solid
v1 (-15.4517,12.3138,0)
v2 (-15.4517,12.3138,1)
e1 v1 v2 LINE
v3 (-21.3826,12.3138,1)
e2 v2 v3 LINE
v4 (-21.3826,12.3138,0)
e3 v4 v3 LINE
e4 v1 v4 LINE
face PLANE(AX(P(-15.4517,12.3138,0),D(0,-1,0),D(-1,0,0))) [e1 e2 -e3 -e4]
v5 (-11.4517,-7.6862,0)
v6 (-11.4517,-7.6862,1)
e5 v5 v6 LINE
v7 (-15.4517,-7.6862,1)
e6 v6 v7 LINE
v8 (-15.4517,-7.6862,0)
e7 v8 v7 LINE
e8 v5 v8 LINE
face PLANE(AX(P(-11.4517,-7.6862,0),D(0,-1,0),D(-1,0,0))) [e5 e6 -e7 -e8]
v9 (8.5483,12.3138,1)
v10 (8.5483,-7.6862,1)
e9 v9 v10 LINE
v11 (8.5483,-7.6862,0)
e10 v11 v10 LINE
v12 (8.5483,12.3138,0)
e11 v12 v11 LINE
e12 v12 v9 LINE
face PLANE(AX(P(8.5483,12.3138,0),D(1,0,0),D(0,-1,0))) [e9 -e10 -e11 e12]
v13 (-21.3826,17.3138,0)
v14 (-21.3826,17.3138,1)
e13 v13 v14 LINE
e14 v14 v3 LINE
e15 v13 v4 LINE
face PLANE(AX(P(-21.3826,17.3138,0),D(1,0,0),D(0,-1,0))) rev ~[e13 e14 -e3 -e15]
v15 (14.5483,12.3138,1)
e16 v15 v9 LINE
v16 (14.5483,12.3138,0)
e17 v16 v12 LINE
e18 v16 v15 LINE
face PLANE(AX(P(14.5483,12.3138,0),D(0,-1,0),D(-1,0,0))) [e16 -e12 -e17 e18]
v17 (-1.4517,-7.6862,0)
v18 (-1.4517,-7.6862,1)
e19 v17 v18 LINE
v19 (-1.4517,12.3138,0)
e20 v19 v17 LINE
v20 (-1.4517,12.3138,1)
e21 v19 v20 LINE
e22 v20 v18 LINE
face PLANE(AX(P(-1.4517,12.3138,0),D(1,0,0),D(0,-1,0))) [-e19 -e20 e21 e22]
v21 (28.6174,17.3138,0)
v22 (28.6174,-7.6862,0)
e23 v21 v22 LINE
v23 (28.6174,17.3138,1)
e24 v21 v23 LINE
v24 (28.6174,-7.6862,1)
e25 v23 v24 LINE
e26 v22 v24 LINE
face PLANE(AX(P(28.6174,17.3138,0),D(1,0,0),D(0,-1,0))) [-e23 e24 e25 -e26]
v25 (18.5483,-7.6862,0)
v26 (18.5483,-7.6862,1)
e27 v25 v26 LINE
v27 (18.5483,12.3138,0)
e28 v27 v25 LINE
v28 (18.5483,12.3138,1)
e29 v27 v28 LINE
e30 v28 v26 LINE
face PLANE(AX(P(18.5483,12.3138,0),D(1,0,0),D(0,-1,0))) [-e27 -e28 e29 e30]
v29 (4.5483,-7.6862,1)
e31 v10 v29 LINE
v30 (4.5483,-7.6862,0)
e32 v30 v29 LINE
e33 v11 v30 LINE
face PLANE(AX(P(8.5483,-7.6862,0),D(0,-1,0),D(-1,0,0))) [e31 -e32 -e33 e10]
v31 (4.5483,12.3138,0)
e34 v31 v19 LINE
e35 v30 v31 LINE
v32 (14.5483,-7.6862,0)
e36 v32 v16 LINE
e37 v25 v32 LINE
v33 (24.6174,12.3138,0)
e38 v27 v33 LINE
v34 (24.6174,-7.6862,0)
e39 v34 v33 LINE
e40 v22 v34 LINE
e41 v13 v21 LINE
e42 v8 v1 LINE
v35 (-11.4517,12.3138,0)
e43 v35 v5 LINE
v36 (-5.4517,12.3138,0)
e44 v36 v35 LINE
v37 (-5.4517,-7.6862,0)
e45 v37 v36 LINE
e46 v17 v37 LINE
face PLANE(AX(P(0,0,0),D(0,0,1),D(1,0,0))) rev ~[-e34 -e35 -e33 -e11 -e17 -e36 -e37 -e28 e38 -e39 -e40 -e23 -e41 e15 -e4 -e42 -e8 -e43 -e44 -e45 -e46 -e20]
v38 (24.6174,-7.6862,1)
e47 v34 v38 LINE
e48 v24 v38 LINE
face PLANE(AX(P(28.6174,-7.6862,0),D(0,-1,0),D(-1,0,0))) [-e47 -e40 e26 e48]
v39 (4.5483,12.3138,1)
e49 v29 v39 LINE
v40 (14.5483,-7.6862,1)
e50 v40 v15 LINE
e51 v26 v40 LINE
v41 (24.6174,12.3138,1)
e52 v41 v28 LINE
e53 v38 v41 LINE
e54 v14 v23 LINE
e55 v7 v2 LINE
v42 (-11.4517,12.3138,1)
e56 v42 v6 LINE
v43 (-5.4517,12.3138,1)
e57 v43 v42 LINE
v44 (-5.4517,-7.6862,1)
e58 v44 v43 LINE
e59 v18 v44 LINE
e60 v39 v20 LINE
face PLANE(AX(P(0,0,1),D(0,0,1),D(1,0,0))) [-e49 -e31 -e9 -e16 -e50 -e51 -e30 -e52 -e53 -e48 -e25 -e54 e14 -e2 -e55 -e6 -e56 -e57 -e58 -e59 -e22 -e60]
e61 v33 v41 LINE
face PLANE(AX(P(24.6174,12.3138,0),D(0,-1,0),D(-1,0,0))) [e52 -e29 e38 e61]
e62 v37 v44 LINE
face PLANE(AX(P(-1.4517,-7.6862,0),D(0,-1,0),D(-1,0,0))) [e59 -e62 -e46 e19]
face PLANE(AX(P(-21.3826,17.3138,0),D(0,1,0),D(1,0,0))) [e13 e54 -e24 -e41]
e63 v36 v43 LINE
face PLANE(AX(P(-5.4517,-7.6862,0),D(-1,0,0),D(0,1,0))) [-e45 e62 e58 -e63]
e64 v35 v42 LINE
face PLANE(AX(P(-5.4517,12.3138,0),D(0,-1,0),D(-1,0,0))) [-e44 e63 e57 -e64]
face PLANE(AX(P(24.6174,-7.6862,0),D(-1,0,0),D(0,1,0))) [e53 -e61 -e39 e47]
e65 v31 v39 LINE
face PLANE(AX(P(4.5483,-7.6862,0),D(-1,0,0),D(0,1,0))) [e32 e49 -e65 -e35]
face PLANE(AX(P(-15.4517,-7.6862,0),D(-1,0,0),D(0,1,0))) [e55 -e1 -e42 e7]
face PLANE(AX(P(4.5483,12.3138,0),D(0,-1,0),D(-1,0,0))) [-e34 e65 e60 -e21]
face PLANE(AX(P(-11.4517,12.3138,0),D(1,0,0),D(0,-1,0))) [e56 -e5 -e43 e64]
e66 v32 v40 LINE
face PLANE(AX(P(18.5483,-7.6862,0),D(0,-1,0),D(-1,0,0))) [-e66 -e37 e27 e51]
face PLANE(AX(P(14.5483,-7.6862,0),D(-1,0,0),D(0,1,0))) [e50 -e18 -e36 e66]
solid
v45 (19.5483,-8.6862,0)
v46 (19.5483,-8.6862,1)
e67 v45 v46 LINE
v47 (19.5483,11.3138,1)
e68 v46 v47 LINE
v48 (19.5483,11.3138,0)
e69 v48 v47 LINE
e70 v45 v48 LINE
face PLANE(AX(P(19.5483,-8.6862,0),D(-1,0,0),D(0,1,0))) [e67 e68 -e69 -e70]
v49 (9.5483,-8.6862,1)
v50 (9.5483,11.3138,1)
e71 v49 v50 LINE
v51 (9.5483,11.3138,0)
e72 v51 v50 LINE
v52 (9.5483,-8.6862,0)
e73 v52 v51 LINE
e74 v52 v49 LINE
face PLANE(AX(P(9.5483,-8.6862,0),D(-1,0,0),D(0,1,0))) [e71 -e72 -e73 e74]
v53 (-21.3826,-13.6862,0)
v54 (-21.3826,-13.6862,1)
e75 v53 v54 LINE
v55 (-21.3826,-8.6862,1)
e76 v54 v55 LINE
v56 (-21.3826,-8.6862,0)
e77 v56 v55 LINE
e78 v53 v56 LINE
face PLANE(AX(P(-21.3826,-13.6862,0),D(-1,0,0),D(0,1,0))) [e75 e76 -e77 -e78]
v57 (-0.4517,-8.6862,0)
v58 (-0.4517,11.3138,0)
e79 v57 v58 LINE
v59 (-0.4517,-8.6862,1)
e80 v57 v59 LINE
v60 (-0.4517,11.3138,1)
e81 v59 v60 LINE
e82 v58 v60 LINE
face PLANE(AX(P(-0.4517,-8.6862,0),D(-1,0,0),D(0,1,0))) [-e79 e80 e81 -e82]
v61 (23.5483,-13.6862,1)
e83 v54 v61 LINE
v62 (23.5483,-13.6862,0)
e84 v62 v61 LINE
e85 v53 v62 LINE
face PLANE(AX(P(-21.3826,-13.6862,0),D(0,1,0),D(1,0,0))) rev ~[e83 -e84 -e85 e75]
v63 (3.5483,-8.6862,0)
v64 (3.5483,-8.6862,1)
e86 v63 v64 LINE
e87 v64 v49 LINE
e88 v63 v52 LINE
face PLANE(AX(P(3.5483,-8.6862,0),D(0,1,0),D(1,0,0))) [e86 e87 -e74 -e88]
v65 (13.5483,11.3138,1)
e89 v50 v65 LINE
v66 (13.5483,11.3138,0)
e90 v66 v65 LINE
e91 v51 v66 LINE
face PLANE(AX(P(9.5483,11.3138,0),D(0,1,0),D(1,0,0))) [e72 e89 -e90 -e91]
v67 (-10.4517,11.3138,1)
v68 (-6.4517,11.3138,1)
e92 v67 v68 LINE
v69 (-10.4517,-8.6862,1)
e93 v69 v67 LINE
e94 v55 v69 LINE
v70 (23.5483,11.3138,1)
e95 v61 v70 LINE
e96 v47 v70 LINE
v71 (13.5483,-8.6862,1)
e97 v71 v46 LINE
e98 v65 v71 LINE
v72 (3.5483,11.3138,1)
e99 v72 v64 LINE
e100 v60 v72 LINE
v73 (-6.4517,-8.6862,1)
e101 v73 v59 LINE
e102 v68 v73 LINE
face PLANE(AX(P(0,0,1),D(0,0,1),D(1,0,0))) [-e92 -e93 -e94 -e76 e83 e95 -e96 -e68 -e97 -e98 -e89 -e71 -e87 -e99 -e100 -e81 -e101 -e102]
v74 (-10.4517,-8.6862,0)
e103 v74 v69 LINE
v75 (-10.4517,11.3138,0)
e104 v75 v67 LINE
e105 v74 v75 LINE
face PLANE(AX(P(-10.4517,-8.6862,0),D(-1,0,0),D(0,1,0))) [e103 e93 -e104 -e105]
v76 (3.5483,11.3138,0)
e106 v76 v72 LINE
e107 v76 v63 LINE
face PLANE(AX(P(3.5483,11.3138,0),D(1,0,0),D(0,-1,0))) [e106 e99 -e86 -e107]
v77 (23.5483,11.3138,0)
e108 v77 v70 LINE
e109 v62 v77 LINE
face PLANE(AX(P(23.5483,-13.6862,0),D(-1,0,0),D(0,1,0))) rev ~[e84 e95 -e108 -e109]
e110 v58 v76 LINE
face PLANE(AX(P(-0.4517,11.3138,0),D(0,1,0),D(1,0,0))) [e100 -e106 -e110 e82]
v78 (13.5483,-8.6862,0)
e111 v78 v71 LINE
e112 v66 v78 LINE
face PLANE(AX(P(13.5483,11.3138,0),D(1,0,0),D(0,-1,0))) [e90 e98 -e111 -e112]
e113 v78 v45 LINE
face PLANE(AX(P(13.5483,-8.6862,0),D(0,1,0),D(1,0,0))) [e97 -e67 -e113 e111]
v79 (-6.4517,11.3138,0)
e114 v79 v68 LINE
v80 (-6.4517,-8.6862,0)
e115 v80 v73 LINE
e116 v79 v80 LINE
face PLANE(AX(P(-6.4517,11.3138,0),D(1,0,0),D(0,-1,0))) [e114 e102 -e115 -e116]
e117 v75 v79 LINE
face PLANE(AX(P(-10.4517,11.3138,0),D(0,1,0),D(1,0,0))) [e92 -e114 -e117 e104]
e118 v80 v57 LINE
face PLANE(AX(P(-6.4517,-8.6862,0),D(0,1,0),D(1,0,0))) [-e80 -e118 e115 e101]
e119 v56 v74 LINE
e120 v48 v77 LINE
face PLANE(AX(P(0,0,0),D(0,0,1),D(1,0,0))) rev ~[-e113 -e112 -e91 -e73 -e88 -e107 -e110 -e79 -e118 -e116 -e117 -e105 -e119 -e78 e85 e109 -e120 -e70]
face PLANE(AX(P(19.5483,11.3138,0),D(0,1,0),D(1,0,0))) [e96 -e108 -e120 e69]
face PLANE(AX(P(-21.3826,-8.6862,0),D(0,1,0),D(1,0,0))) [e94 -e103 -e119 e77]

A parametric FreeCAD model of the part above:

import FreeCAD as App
import Part
import Sketcher

V = App.Vector


def add_polygon(sketch, points):
    """Adds a closed chain of lines whose ends are joined by coincident constraints."""
    first, n = sketch.GeometryCount, len(points)
    for a, b in zip(points, points[1:] + points[:1]):
        sketch.addGeometry(Part.LineSegment(App.Vector(*a, 0), App.Vector(*b, 0)), False)
    for i in range(n):
        sketch.addConstraint(Sketcher.Constraint("Coincident", first + i, 2, first + (i + 1) % n, 1))

doc = App.newDocument("Part")
body = doc.addObject("PartDesign::Body", "Body")
body.AllowCompound = True

# Sketch on XY plane
sketch1 = doc.addObject("Sketcher::SketchObject", "Sketch")
body.addObject(sketch1)
sketch1.AttachmentSupport = (doc.XY_Plane, [""])
sketch1.MapMode = "FlatFace"
add_polygon(sketch1, [(28.6, 17.3), (-21.4, 17.3), (-21.4, 12.3), (-15.5, 12.3), (-15.5, -7.7), (-11.5, -7.7), (-11.5, 12.3), (-5.5, 12.3), (-5.5, -7.7), (-1.5, -7.7), (-1.5, 12.3), (4.5, 12.3), (4.5, -7.7), (8.5, -7.7), (8.5, 12.3), (14.5, 12.3), (14.5, -7.7), (18.5, -7.7), (18.5, 12.3), (24.6, 12.3), (24.6, -7.7), (28.6, -7.7)])  # lines 0-21
add_polygon(sketch1, [(-21.4, -8.7), (-21.4, -13.7), (23.5, -13.7), (23.5, 11.3), (19.5, 11.3), (19.5, -8.7), (13.5, -8.7), (13.5, 11.3), (9.5, 11.3), (9.5, -8.7), (3.5, -8.7), (3.5, 11.3), (-0.5, 11.3), (-0.5, -8.7), (-6.5, -8.7), (-6.5, 11.3), (-10.5, 11.3), (-10.5, -8.7)])  # lines 22-39
sketch1.addConstraint(Sketcher.Constraint("Horizontal", 0))
sketch1.addConstraint(Sketcher.Constraint("Vertical", 1))
sketch1.addConstraint(Sketcher.Constraint("Horizontal", 2))
sketch1.addConstraint(Sketcher.Constraint("Vertical", 3))
sketch1.addConstraint(Sketcher.Constraint("Horizontal", 4))
sketch1.addConstraint(Sketcher.Constraint("Vertical", 5))
sketch1.addConstraint(Sketcher.Constraint("Horizontal", 6))
sketch1.addConstraint(Sketcher.Constraint("Vertical", 7))
sketch1.addConstraint(Sketcher.Constraint("Horizontal", 8))
sketch1.addConstraint(Sketcher.Constraint("Vertical", 9))
sketch1.addConstraint(Sketcher.Constraint("Horizontal", 10))
sketch1.addConstraint(Sketcher.Constraint("Vertical", 11))
sketch1.addConstraint(Sketcher.Constraint("Horizontal", 12))
sketch1.addConstraint(Sketcher.Constraint("Vertical", 13))
sketch1.addConstraint(Sketcher.Constraint("Horizontal", 14))
sketch1.addConstraint(Sketcher.Constraint("Vertical", 15))
sketch1.addConstraint(Sketcher.Constraint("Horizontal", 16))
sketch1.addConstraint(Sketcher.Constraint("Vertical", 17))
sketch1.addConstraint(Sketcher.Constraint("Horizontal", 18))
sketch1.addConstraint(Sketcher.Constraint("Vertical", 19))
sketch1.addConstraint(Sketcher.Constraint("Horizontal", 20))
sketch1.addConstraint(Sketcher.Constraint("Vertical", 21))
sketch1.addConstraint(Sketcher.Constraint("Vertical", 22))
sketch1.addConstraint(Sketcher.Constraint("Horizontal", 23))
sketch1.addConstraint(Sketcher.Constraint("Vertical", 24))
sketch1.addConstraint(Sketcher.Constraint("Horizontal", 25))
sketch1.addConstraint(Sketcher.Constraint("Vertical", 26))
sketch1.addConstraint(Sketcher.Constraint("Horizontal", 27))
sketch1.addConstraint(Sketcher.Constraint("Vertical", 28))
sketch1.addConstraint(Sketcher.Constraint("Horizontal", 29))
sketch1.addConstraint(Sketcher.Constraint("Vertical", 30))
sketch1.addConstraint(Sketcher.Constraint("Horizontal", 31))
sketch1.addConstraint(Sketcher.Constraint("Vertical", 32))
sketch1.addConstraint(Sketcher.Constraint("Horizontal", 33))
sketch1.addConstraint(Sketcher.Constraint("Vertical", 34))
sketch1.addConstraint(Sketcher.Constraint("Horizontal", 35))
sketch1.addConstraint(Sketcher.Constraint("Vertical", 36))
sketch1.addConstraint(Sketcher.Constraint("Horizontal", 37))
sketch1.addConstraint(Sketcher.Constraint("Vertical", 38))
sketch1.addConstraint(Sketcher.Constraint("Horizontal", 39))
sketch1.addConstraint(Sketcher.Constraint("Horizontal", 2, 2, 5, 2))
sketch1.addConstraint(Sketcher.Constraint("Horizontal", 4, 2, 7, 2))
sketch1.addConstraint(Sketcher.Constraint("Horizontal", 6, 2, 9, 2))
sketch1.addConstraint(Sketcher.Constraint("Horizontal", 8, 2, 11, 2))
sketch1.addConstraint(Sketcher.Constraint("Horizontal", 10, 2, 13, 2))
sketch1.addConstraint(Sketcher.Constraint("Horizontal", 12, 2, 15, 2))
sketch1.addConstraint(Sketcher.Constraint("Horizontal", 14, 2, 17, 2))
sketch1.addConstraint(Sketcher.Constraint("Horizontal", 16, 2, 19, 2))
sketch1.addConstraint(Sketcher.Constraint("Horizontal", 25, 2, 28, 2))
sketch1.addConstraint(Sketcher.Constraint("Horizontal", 27, 2, 30, 2))
sketch1.addConstraint(Sketcher.Constraint("Horizontal", 29, 2, 32, 2))
sketch1.addConstraint(Sketcher.Constraint("Horizontal", 31, 2, 34, 2))
sketch1.addConstraint(Sketcher.Constraint("Horizontal", 33, 2, 36, 2))
sketch1.addConstraint(Sketcher.Constraint("Horizontal", 35, 2, 38, 2))
sketch1.addConstraint(Sketcher.Constraint("Vertical", 1, 2, 22, 2))
sketch1.addConstraint(Sketcher.Constraint("Equal", 4, 8))
sketch1.addConstraint(Sketcher.Constraint("Equal", 6, 10))
sketch1.addConstraint(Sketcher.Constraint("Equal", 8, 12))
sketch1.addConstraint(Sketcher.Constraint("Equal", 10, 14))
sketch1.addConstraint(Sketcher.Constraint("Equal", 12, 16))
sketch1.addConstraint(Sketcher.Constraint("Equal", 16, 20))
sketch1.addConstraint(Sketcher.Constraint("Equal", 20, 25))
sketch1.addConstraint(Sketcher.Constraint("Equal", 14, 27))
sketch1.addConstraint(Sketcher.Constraint("Equal", 25, 29))
sketch1.addConstraint(Sketcher.Constraint("Equal", 27, 31))
sketch1.addConstraint(Sketcher.Constraint("Equal", 29, 33))
sketch1.addConstraint(Sketcher.Constraint("Equal", 31, 35))
sketch1.addConstraint(Sketcher.Constraint("Equal", 33, 37))
sketch1.addConstraint(Sketcher.Constraint("Equal", 1, 22))
sketch1.addConstraint(Sketcher.Constraint("Equal", 21, 24))
sketch1.addConstraint(Sketcher.Constraint("DistanceX", 0, 2, 0, 1, 50.0))
sketch1.addConstraint(Sketcher.Constraint("DistanceX", 4, 1, 4, 2, 4.0))
sketch1.addConstraint(Sketcher.Constraint("DistanceX", 6, 1, 6, 2, 6.0))
sketch1.addConstraint(Sketcher.Constraint("DistanceY", 1, 2, 1, 1, 5.0))
sketch1.addConstraint(Sketcher.Constraint("DistanceY", 21, 1, 21, 2, 25.0))
sketch1.addConstraint(Sketcher.Constraint("DistanceY", 22, 2, 3, 2, 6.0))
sketch1.addConstraint(Sketcher.Constraint("DistanceX", 16, 2, 23, 2, 5.0))
sketch1.addConstraint(Sketcher.Constraint("DistanceX", 2, 1, 2, 2, 5.931))
sketch1.addConstraint(Sketcher.Constraint("DistanceX", 0, 2, -1, 1, 21.3826))
sketch1.addConstraint(Sketcher.Constraint("DistanceY", -1, 1, 0, 2, 17.3138))
pad1 = doc.addObject("PartDesign::Pad", "Pad")
body.addObject(pad1)
pad1.Profile = sketch1
pad1.Length = 1

doc.recompute()
